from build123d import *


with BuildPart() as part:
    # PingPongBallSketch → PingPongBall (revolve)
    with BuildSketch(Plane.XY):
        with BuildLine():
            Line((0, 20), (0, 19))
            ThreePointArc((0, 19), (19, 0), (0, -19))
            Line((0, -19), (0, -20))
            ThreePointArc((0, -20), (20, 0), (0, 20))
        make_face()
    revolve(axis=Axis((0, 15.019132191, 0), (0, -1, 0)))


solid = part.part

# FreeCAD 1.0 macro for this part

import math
import FreeCAD as App
import Part
import Sketcher
Q = App.Units.Quantity

doc = App.newDocument("Part")
body = doc.addObject("PartDesign::Body", "Body")

sketch1 = body.newObject("Sketcher::SketchObject", "Sketch")
sketch1.AttachmentSupport = (doc.getObject("XY_Plane"), [""])
sketch1.MapMode = "FlatFace"
sketch1.addGeometry([
    Part.LineSegment(App.Vector(0, 20, 0), App.Vector(0, 19, 0)),
    Part.ArcOfCircle(Part.Circle(App.Vector(0, 0, 0), App.Vector(0, 0, 1), 19), math.radians(-90), math.radians(90)),
    Part.LineSegment(App.Vector(0, -19, 0), App.Vector(0, -20, 0)),
    Part.ArcOfCircle(Part.Circle(App.Vector(0, 0, 0), App.Vector(0, 0, 1), 20), math.radians(-90), math.radians(90)),
], False)
sketch1.addConstraint([
    Sketcher.Constraint("Coincident", 0, 2, 1, 2),
    Sketcher.Constraint("Coincident", 1, 1, 2, 1),
    Sketcher.Constraint("Coincident", 2, 2, 3, 1),
    Sketcher.Constraint("Coincident", 3, 2, 0, 1),
    Sketcher.Constraint("Vertical", 0),
    Sketcher.Constraint("Vertical", 2),
    Sketcher.Constraint("Coincident", 1, 3, -1, 1),
    Sketcher.Constraint("Coincident", 3, 3, -1, 1),
    Sketcher.Constraint("PointOnObject", 0, 2, -2),
    Sketcher.Constraint("PointOnObject", 1, 1, -2),
    Sketcher.Constraint("Radius", 1, Q("19 mm")),
    Sketcher.Constraint("Radius", 3, Q("20 mm")),
])
revolution = body.newObject("PartDesign::Revolution", "Revolution")
revolution.Profile = sketch1
revolution.ReferenceAxis = (sketch1, ["V_Axis"])
revolution.Angle = 360

doc.recompute()
